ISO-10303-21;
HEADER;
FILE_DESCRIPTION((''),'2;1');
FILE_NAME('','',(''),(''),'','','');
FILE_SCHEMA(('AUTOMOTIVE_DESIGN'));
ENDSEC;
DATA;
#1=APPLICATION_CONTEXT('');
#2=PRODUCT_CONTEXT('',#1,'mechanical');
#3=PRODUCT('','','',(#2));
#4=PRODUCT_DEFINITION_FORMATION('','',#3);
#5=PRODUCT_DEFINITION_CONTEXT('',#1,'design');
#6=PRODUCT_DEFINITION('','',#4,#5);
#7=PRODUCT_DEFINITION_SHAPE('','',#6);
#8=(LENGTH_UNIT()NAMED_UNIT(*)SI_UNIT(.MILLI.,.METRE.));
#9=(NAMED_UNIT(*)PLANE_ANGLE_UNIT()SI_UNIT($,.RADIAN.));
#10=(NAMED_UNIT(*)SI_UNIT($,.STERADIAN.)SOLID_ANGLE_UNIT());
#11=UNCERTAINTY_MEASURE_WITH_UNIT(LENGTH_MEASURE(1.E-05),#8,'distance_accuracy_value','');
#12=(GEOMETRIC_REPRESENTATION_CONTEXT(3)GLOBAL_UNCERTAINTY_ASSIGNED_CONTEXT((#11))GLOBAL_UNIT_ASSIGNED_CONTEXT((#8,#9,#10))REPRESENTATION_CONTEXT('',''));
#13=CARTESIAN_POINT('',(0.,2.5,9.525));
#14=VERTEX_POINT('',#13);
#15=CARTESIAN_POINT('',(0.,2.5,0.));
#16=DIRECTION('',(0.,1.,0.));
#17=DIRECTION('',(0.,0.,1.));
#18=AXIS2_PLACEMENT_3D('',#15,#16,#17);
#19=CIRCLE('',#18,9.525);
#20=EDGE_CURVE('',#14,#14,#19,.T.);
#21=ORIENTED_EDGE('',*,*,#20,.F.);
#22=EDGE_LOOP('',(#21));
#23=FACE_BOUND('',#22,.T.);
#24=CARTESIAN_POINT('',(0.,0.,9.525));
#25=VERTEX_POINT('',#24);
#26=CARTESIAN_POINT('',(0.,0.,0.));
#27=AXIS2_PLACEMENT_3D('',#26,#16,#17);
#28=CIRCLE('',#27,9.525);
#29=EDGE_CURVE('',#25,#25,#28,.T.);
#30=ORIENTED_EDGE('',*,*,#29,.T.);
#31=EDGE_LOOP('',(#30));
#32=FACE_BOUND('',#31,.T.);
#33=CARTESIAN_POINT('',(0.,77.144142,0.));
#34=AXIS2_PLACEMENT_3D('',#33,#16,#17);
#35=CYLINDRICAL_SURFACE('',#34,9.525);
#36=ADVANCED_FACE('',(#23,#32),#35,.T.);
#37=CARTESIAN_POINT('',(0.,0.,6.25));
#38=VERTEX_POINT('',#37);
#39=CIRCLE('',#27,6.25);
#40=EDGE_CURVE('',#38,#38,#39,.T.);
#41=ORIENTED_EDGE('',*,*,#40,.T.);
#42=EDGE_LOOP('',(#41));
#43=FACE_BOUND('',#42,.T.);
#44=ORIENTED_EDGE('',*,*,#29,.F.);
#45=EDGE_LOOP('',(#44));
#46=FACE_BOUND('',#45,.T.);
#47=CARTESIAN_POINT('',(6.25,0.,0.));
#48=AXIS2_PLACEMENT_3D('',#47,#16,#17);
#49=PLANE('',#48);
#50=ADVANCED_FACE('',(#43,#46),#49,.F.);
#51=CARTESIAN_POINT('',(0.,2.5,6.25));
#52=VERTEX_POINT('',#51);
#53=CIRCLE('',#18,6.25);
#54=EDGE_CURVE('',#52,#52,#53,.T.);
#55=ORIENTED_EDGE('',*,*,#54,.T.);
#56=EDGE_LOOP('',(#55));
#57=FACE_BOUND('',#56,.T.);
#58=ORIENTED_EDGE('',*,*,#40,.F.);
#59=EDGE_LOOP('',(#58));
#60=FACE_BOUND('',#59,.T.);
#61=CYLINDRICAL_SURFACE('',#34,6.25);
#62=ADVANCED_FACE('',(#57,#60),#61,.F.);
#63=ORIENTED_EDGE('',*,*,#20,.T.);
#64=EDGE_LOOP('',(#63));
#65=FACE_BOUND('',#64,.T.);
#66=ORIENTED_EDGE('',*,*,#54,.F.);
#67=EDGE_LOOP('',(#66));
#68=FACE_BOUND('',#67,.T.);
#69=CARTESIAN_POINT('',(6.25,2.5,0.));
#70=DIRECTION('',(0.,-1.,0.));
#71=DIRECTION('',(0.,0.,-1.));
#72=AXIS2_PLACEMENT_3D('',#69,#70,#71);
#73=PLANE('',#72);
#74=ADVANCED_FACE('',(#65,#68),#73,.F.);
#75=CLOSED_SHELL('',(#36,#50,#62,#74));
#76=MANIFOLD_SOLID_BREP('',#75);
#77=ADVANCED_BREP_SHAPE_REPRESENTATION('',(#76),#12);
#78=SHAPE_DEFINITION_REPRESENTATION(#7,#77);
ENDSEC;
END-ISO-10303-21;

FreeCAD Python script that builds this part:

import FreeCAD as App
import Part
import Sketcher

V = App.Vector


def add_polygon(sketch, points):
    """Adds a closed chain of lines whose ends are joined by coincident constraints."""
    first, n = sketch.GeometryCount, len(points)
    for a, b in zip(points, points[1:] + points[:1]):
        sketch.addGeometry(Part.LineSegment(App.Vector(*a, 0), App.Vector(*b, 0)), False)
    for i in range(n):
        sketch.addConstraint(Sketcher.Constraint("Coincident", first + i, 2, first + (i + 1) % n, 1))

doc = App.newDocument("Part")
body = doc.addObject("PartDesign::Body", "Body")

sketch1 = body.newObject("Sketcher::SketchObject", "Sketch")
sketch1.AttachmentSupport = (doc.getObject("XY_Plane"), [""])
sketch1.MapMode = "FlatFace"
add_polygon(sketch1, [(6.2, 2.5), (6.2, 0), (9.5, 0), (9.5, 2.5)])
sketch1.addConstraint(Sketcher.Constraint("Vertical", 0))
sketch1.addConstraint(Sketcher.Constraint("Horizontal", 1))
sketch1.addConstraint(Sketcher.Constraint("Vertical", 2))
sketch1.addConstraint(Sketcher.Constraint("Horizontal", 3))
sketch1.addConstraint(Sketcher.Constraint("PointOnObject", 0, 2, -1))
sketch1.addConstraint(Sketcher.Constraint("DistanceY", 0, 2, 0, 1, 2.5))
sketch1.addConstraint(Sketcher.Constraint("DistanceX", 1, 1, 1, 2, 3.275))
sketch1.addConstraint(Sketcher.Constraint("DistanceX", -1, 1, 0, 2, 6.25))
revolution = body.newObject("PartDesign::Revolution", "Revolution")
revolution.Profile = sketch1
revolution.ReferenceAxis = (sketch1, ["V_Axis"])
revolution.Angle = 360

doc.recompute()
